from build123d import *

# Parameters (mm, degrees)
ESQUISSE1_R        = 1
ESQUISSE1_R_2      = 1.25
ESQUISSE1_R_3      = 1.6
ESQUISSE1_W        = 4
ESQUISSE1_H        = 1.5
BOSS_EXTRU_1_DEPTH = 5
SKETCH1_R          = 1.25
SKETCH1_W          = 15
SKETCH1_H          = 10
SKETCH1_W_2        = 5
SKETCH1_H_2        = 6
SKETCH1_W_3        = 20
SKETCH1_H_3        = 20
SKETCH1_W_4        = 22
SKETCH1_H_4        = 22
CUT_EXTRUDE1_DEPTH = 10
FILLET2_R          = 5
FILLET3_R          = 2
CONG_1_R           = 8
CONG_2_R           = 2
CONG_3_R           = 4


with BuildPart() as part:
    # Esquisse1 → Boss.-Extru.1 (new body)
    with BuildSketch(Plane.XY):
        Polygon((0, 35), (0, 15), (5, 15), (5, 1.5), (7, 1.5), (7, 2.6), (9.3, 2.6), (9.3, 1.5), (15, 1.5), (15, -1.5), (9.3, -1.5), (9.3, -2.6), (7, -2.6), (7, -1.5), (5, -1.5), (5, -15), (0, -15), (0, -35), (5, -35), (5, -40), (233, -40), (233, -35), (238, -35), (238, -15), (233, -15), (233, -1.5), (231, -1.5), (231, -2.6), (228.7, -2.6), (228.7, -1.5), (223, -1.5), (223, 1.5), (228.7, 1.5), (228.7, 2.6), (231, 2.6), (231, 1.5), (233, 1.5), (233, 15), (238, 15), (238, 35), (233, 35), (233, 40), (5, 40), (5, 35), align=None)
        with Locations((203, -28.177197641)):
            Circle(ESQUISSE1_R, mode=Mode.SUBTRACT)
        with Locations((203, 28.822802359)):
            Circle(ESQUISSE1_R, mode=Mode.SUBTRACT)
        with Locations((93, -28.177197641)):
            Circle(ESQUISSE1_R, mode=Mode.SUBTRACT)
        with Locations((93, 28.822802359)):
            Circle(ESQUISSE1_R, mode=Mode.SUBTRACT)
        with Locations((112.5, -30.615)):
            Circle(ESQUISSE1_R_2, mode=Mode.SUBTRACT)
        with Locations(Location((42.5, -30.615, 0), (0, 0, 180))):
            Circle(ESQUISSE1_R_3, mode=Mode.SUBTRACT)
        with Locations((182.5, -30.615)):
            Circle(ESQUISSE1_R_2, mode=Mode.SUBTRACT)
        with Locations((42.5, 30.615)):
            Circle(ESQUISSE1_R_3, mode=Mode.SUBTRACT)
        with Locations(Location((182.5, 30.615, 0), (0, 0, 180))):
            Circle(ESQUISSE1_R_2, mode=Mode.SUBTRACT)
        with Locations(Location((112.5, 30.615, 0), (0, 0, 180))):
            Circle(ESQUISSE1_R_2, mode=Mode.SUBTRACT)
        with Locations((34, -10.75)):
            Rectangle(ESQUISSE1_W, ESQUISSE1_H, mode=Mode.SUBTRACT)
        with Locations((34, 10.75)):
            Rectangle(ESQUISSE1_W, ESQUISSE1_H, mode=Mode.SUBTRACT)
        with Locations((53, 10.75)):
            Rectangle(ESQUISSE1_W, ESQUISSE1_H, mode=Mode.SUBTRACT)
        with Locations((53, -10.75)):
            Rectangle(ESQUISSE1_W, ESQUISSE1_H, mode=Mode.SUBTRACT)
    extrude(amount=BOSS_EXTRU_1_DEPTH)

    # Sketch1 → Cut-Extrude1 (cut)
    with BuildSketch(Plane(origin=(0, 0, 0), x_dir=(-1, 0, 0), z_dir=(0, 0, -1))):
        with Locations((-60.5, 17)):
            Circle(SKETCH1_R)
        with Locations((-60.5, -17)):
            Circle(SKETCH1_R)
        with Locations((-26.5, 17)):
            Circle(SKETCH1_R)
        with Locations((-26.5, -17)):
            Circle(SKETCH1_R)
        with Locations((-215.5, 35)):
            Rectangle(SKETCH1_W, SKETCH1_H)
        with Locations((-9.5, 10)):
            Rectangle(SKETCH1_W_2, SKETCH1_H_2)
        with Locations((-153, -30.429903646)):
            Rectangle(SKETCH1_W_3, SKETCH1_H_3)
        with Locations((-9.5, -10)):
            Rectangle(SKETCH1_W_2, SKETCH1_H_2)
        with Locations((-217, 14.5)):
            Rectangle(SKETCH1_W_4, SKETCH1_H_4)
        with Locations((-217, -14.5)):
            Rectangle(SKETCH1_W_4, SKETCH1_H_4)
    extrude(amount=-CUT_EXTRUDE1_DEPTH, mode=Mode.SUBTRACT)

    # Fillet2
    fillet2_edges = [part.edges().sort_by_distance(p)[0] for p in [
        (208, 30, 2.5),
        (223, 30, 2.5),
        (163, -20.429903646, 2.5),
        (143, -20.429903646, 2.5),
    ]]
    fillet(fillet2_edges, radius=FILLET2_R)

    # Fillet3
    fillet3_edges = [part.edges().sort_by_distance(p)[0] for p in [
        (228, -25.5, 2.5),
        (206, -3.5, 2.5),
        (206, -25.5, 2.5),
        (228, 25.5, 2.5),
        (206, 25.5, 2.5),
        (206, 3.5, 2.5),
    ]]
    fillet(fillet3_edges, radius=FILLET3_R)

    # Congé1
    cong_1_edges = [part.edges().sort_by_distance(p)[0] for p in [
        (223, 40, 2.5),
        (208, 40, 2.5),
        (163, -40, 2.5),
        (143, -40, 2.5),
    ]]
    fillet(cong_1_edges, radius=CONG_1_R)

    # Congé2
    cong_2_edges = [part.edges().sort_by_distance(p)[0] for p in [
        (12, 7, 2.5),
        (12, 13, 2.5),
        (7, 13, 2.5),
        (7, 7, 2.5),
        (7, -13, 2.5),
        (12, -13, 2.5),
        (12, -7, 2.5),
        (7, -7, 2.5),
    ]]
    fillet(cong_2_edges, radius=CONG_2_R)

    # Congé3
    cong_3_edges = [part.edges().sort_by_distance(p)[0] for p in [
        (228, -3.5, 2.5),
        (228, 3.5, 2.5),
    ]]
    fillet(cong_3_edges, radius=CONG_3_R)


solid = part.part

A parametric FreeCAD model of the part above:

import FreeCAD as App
import Part
import Sketcher
from FreeCAD import Vector
Q = App.Units.Quantity


def edges_at(feature, points):
    """Names of the edges that pass closest to the given points."""
    edges = feature.Shape.Edges
    near = lambda p: min(range(len(edges)), key=lambda i: edges[i].distToShape(Part.Vertex(*p))[0])
    return sorted({f"Edge{near(p) + 1}" for p in points})

doc = App.newDocument("Part")
body = doc.addObject("PartDesign::Body", "Body")

# Sketch on XY plane
sketch1 = body.newObject("Sketcher::SketchObject", "Sketch")
sketch1.AttachmentSupport = (doc.getObject("XY_Plane"), [""])
sketch1.MapMode = "FlatFace"
sketch1.addGeometry([
    Part.LineSegment(Vector(0, 35, 0), Vector(0, 15, 0)),  # 0
    Part.LineSegment(Vector(0, 15, 0), Vector(5, 15, 0)),  # 1
    Part.LineSegment(Vector(5, 15, 0), Vector(5, 1.5, 0)),  # 2
    Part.LineSegment(Vector(5, 1.5, 0), Vector(7, 1.5, 0)),  # 3
    Part.LineSegment(Vector(7, 1.5, 0), Vector(7, 2.6, 0)),  # 4
    Part.LineSegment(Vector(7, 2.6, 0), Vector(9.3, 2.6, 0)),  # 5
    Part.LineSegment(Vector(9.3, 2.6, 0), Vector(9.3, 1.5, 0)),  # 6
    Part.LineSegment(Vector(9.3, 1.5, 0), Vector(15, 1.5, 0)),  # 7
    Part.LineSegment(Vector(15, 1.5, 0), Vector(15, -1.5, 0)),  # 8
    Part.LineSegment(Vector(15, -1.5, 0), Vector(9.3, -1.5, 0)),  # 9
    Part.LineSegment(Vector(9.3, -1.5, 0), Vector(9.3, -2.6, 0)),  # 10
    Part.LineSegment(Vector(9.3, -2.6, 0), Vector(7, -2.6, 0)),  # 11
    Part.LineSegment(Vector(7, -2.6, 0), Vector(7, -1.5, 0)),  # 12
    Part.LineSegment(Vector(7, -1.5, 0), Vector(5, -1.5, 0)),  # 13
    Part.LineSegment(Vector(5, -1.5, 0), Vector(5, -15, 0)),  # 14
    Part.LineSegment(Vector(5, -15, 0), Vector(0, -15, 0)),  # 15
    Part.LineSegment(Vector(0, -15, 0), Vector(0, -35, 0)),  # 16
    Part.LineSegment(Vector(0, -35, 0), Vector(5, -35, 0)),  # 17
    Part.LineSegment(Vector(5, -35, 0), Vector(5, -40, 0)),  # 18
    Part.LineSegment(Vector(5, -40, 0), Vector(233, -40, 0)),  # 19
    Part.LineSegment(Vector(233, -40, 0), Vector(233, -35, 0)),  # 20
    Part.LineSegment(Vector(233, -35, 0), Vector(238, -35, 0)),  # 21
    Part.LineSegment(Vector(238, -35, 0), Vector(238, -15, 0)),  # 22
    Part.LineSegment(Vector(238, -15, 0), Vector(233, -15, 0)),  # 23
    Part.LineSegment(Vector(233, -15, 0), Vector(233, -1.5, 0)),  # 24
    Part.LineSegment(Vector(233, -1.5, 0), Vector(231, -1.5, 0)),  # 25
    Part.LineSegment(Vector(231, -1.5, 0), Vector(231, -2.6, 0)),  # 26
    Part.LineSegment(Vector(231, -2.6, 0), Vector(228.7, -2.6, 0)),  # 27
    Part.LineSegment(Vector(228.7, -2.6, 0), Vector(228.7, -1.5, 0)),  # 28
    Part.LineSegment(Vector(228.7, -1.5, 0), Vector(223, -1.5, 0)),  # 29
    Part.LineSegment(Vector(223, -1.5, 0), Vector(223, 1.5, 0)),  # 30
    Part.LineSegment(Vector(223, 1.5, 0), Vector(228.7, 1.5, 0)),  # 31
    Part.LineSegment(Vector(228.7, 1.5, 0), Vector(228.7, 2.6, 0)),  # 32
    Part.LineSegment(Vector(228.7, 2.6, 0), Vector(231, 2.6, 0)),  # 33
    Part.LineSegment(Vector(231, 2.6, 0), Vector(231, 1.5, 0)),  # 34
    Part.LineSegment(Vector(231, 1.5, 0), Vector(233, 1.5, 0)),  # 35
    Part.LineSegment(Vector(233, 1.5, 0), Vector(233, 15, 0)),  # 36
    Part.LineSegment(Vector(233, 15, 0), Vector(238, 15, 0)),  # 37
    Part.LineSegment(Vector(238, 15, 0), Vector(238, 35, 0)),  # 38
    Part.LineSegment(Vector(238, 35, 0), Vector(233, 35, 0)),  # 39
    Part.LineSegment(Vector(233, 35, 0), Vector(233, 40, 0)),  # 40
    Part.LineSegment(Vector(233, 40, 0), Vector(5, 40, 0)),  # 41
    Part.LineSegment(Vector(5, 40, 0), Vector(5, 35, 0)),  # 42
    Part.LineSegment(Vector(5, 35, 0), Vector(0, 35, 0)),  # 43
    Part.Circle(Vector(42.5, -30.6, 0), Vector(0, 0, 1), 1.6),  # 44
    Part.Circle(Vector(93, -28.2, 0), Vector(0, 0, 1), 1),  # 45
    Part.Circle(Vector(112.5, -30.6, 0), Vector(0, 0, 1), 1.2),  # 46
    Part.LineSegment(Vector(36, -11.5, 0), Vector(32, -11.5, 0)),  # 47
    Part.LineSegment(Vector(32, -11.5, 0), Vector(32, -10, 0)),  # 48
    Part.LineSegment(Vector(32, -10, 0), Vector(36, -10, 0)),  # 49
    Part.LineSegment(Vector(36, -10, 0), Vector(36, -11.5, 0)),  # 50
    Part.LineSegment(Vector(55, -11.5, 0), Vector(51, -11.5, 0)),  # 51
    Part.LineSegment(Vector(51, -11.5, 0), Vector(51, -10, 0)),  # 52
    Part.LineSegment(Vector(51, -10, 0), Vector(55, -10, 0)),  # 53
    Part.LineSegment(Vector(55, -10, 0), Vector(55, -11.5, 0)),  # 54
    Part.Circle(Vector(182.5, -30.6, 0), Vector(0, 0, 1), 1.2),  # 55
    Part.Circle(Vector(203, -28.2, 0), Vector(0, 0, 1), 1),  # 56
    Part.LineSegment(Vector(36, 10, 0), Vector(32, 10, 0)),  # 57
    Part.LineSegment(Vector(32, 10, 0), Vector(32, 11.5, 0)),  # 58
    Part.LineSegment(Vector(32, 11.5, 0), Vector(36, 11.5, 0)),  # 59
    Part.LineSegment(Vector(36, 11.5, 0), Vector(36, 10, 0)),  # 60
    Part.LineSegment(Vector(55, 10, 0), Vector(51, 10, 0)),  # 61
    Part.LineSegment(Vector(51, 10, 0), Vector(51, 11.5, 0)),  # 62
    Part.LineSegment(Vector(51, 11.5, 0), Vector(55, 11.5, 0)),  # 63
    Part.LineSegment(Vector(55, 11.5, 0), Vector(55, 10, 0)),  # 64
    Part.Circle(Vector(42.5, 30.6, 0), Vector(0, 0, 1), 1.6),  # 65
    Part.Circle(Vector(93, 28.8, 0), Vector(0, 0, 1), 1),  # 66
    Part.Circle(Vector(112.5, 30.6, 0), Vector(0, 0, 1), 1.2),  # 67
    Part.Circle(Vector(182.5, 30.6, 0), Vector(0, 0, 1), 1.2),  # 68
    Part.Circle(Vector(203, 28.8, 0), Vector(0, 0, 1), 1),  # 69
], False)
sketch1.addConstraint([
    Sketcher.Constraint("Coincident", 0, 2, 1, 1),
    Sketcher.Constraint("Coincident", 1, 2, 2, 1),
    Sketcher.Constraint("Coincident", 2, 2, 3, 1),
    Sketcher.Constraint("Coincident", 3, 2, 4, 1),
    Sketcher.Constraint("Coincident", 4, 2, 5, 1),
    Sketcher.Constraint("Coincident", 5, 2, 6, 1),
    Sketcher.Constraint("Coincident", 6, 2, 7, 1),
    Sketcher.Constraint("Coincident", 7, 2, 8, 1),
    Sketcher.Constraint("Coincident", 8, 2, 9, 1),
    Sketcher.Constraint("Coincident", 9, 2, 10, 1),
    Sketcher.Constraint("Coincident", 10, 2, 11, 1),
    Sketcher.Constraint("Coincident", 11, 2, 12, 1),
    Sketcher.Constraint("Coincident", 12, 2, 13, 1),
    Sketcher.Constraint("Coincident", 13, 2, 14, 1),
    Sketcher.Constraint("Coincident", 14, 2, 15, 1),
    Sketcher.Constraint("Coincident", 15, 2, 16, 1),
    Sketcher.Constraint("Coincident", 16, 2, 17, 1),
    Sketcher.Constraint("Coincident", 17, 2, 18, 1),
    Sketcher.Constraint("Coincident", 18, 2, 19, 1),
    Sketcher.Constraint("Coincident", 19, 2, 20, 1),
    Sketcher.Constraint("Coincident", 20, 2, 21, 1),
    Sketcher.Constraint("Coincident", 21, 2, 22, 1),
    Sketcher.Constraint("Coincident", 22, 2, 23, 1),
    Sketcher.Constraint("Coincident", 23, 2, 24, 1),
    Sketcher.Constraint("Coincident", 24, 2, 25, 1),
    Sketcher.Constraint("Coincident", 25, 2, 26, 1),
    Sketcher.Constraint("Coincident", 26, 2, 27, 1),
    Sketcher.Constraint("Coincident", 27, 2, 28, 1),
    Sketcher.Constraint("Coincident", 28, 2, 29, 1),
    Sketcher.Constraint("Coincident", 29, 2, 30, 1),
    Sketcher.Constraint("Coincident", 30, 2, 31, 1),
    Sketcher.Constraint("Coincident", 31, 2, 32, 1),
    Sketcher.Constraint("Coincident", 32, 2, 33, 1),
    Sketcher.Constraint("Coincident", 33, 2, 34, 1),
    Sketcher.Constraint("Coincident", 34, 2, 35, 1),
    Sketcher.Constraint("Coincident", 35, 2, 36, 1),
    Sketcher.Constraint("Coincident", 36, 2, 37, 1),
    Sketcher.Constraint("Coincident", 37, 2, 38, 1),
    Sketcher.Constraint("Coincident", 38, 2, 39, 1),
    Sketcher.Constraint("Coincident", 39, 2, 40, 1),
    Sketcher.Constraint("Coincident", 40, 2, 41, 1),
    Sketcher.Constraint("Coincident", 41, 2, 42, 1),
    Sketcher.Constraint("Coincident", 42, 2, 43, 1),
    Sketcher.Constraint("Coincident", 43, 2, 0, 1),
    Sketcher.Constraint("Coincident", 47, 2, 48, 1),
    Sketcher.Constraint("Coincident", 48, 2, 49, 1),
    Sketcher.Constraint("Coincident", 49, 2, 50, 1),
    Sketcher.Constraint("Coincident", 50, 2, 47, 1),
    Sketcher.Constraint("Coincident", 51, 2, 52, 1),
    Sketcher.Constraint("Coincident", 52, 2, 53, 1),
    Sketcher.Constraint("Coincident", 53, 2, 54, 1),
    Sketcher.Constraint("Coincident", 54, 2, 51, 1),
    Sketcher.Constraint("Coincident", 57, 2, 58, 1),
    Sketcher.Constraint("Coincident", 58, 2, 59, 1),
    Sketcher.Constraint("Coincident", 59, 2, 60, 1),
    Sketcher.Constraint("Coincident", 60, 2, 57, 1),
    Sketcher.Constraint("Coincident", 61, 2, 62, 1),
    Sketcher.Constraint("Coincident", 62, 2, 63, 1),
    Sketcher.Constraint("Coincident", 63, 2, 64, 1),
    Sketcher.Constraint("Coincident", 64, 2, 61, 1),
    Sketcher.Constraint("Vertical", 0),
    Sketcher.Constraint("Horizontal", 1),
    Sketcher.Constraint("Vertical", 2),
    Sketcher.Constraint("Horizontal", 3),
    Sketcher.Constraint("Vertical", 4),
    Sketcher.Constraint("Horizontal", 5),
    Sketcher.Constraint("Vertical", 6),
    Sketcher.Constraint("Horizontal", 7),
    Sketcher.Constraint("Vertical", 8),
    Sketcher.Constraint("Horizontal", 9),
    Sketcher.Constraint("Vertical", 10),
    Sketcher.Constraint("Horizontal", 11),
    Sketcher.Constraint("Vertical", 12),
    Sketcher.Constraint("Horizontal", 13),
    Sketcher.Constraint("Vertical", 14),
    Sketcher.Constraint("Horizontal", 15),
    Sketcher.Constraint("Vertical", 16),
    Sketcher.Constraint("Horizontal", 17),
    Sketcher.Constraint("Vertical", 18),
    Sketcher.Constraint("Horizontal", 19),
    Sketcher.Constraint("Vertical", 20),
    Sketcher.Constraint("Horizontal", 21),
    Sketcher.Constraint("Vertical", 22),
    Sketcher.Constraint("Horizontal", 23),
    Sketcher.Constraint("Vertical", 24),
    Sketcher.Constraint("Horizontal", 25),
    Sketcher.Constraint("Vertical", 26),
    Sketcher.Constraint("Horizontal", 27),
    Sketcher.Constraint("Vertical", 28),
    Sketcher.Constraint("Horizontal", 29),
    Sketcher.Constraint("Vertical", 30),
    Sketcher.Constraint("Horizontal", 31),
    Sketcher.Constraint("Vertical", 32),
    Sketcher.Constraint("Horizontal", 33),
    Sketcher.Constraint("Vertical", 34),
    Sketcher.Constraint("Horizontal", 35),
    Sketcher.Constraint("Vertical", 36),
    Sketcher.Constraint("Horizontal", 37),
    Sketcher.Constraint("Vertical", 38),
    Sketcher.Constraint("Horizontal", 39),
    Sketcher.Constraint("Vertical", 40),
    Sketcher.Constraint("Horizontal", 41),
    Sketcher.Constraint("Vertical", 42),
    Sketcher.Constraint("Horizontal", 43),
    Sketcher.Constraint("Horizontal", 47),
    Sketcher.Constraint("Vertical", 48),
    Sketcher.Constraint("Horizontal", 49),
    Sketcher.Constraint("Vertical", 50),
    Sketcher.Constraint("Horizontal", 51),
    Sketcher.Constraint("Vertical", 52),
    Sketcher.Constraint("Horizontal", 53),
    Sketcher.Constraint("Vertical", 54),
    Sketcher.Constraint("Horizontal", 57),
    Sketcher.Constraint("Vertical", 58),
    Sketcher.Constraint("Horizontal", 59),
    Sketcher.Constraint("Vertical", 60),
    Sketcher.Constraint("Horizontal", 61),
    Sketcher.Constraint("Vertical", 62),
    Sketcher.Constraint("Horizontal", 63),
    Sketcher.Constraint("Vertical", 64),
    Sketcher.Constraint("Equal", 46, 55),
    Sketcher.Constraint("Equal", 45, 56),
    Sketcher.Constraint("Equal", 44, 65),
    Sketcher.Constraint("Equal", 56, 66),
    Sketcher.Constraint("Equal", 55, 67),
    Sketcher.Constraint("Equal", 67, 68),
    Sketcher.Constraint("Equal", 66, 69),
    Sketcher.Constraint("Symmetric", 0, 2, 15, 2, -1, 1),
    Sketcher.Constraint("Symmetric", 44, 3, 65, 3, -1),
    Sketcher.Constraint("Symmetric", 46, 3, 67, 3, -1),
    Sketcher.Constraint("Symmetric", 55, 3, 68, 3, -1),
    Sketcher.Constraint("Symmetric", 6, 2, 9, 2, -1),
    Sketcher.Constraint("Symmetric", 4, 2, 11, 2, -1),
    Sketcher.Constraint("Symmetric", 2, 2, 13, 2, -1),
    Sketcher.Constraint("Symmetric", 28, 2, 31, 2, -1),
    Sketcher.Constraint("Symmetric", 26, 2, 33, 2, -1),
    Sketcher.Constraint("Symmetric", 24, 2, 35, 2, -1),
    Sketcher.Constraint("Symmetric", 22, 2, 37, 2, -1),
    Sketcher.Constraint("Symmetric", 20, 2, 39, 2, -1),
    Sketcher.Constraint("Symmetric", 18, 2, 41, 2, -1),
    Sketcher.Constraint("Symmetric", 16, 2, 43, 2, -1),
    Sketcher.Constraint("Symmetric", 48, 2, 57, 2, -1),
    Sketcher.Constraint("Symmetric", 50, 2, 59, 2, -1),
    Sketcher.Constraint("Symmetric", 52, 2, 61, 2, -1),
    Sketcher.Constraint("Symmetric", 54, 2, 63, 2, -1),
    Sketcher.Constraint("Horizontal", 44, 3, 46, 3),
    Sketcher.Constraint("Horizontal", 46, 3, 55, 3),
    Sketcher.Constraint("Horizontal", 45, 3, 56, 3),
    Sketcher.Constraint("Horizontal", 66, 3, 69, 3),
    Sketcher.Constraint("Horizontal", 3, 2, 6, 2),
    Sketcher.Constraint("Horizontal", 17, 2, 20, 2),
    Sketcher.Constraint("Horizontal", 15, 2, 22, 2),
    Sketcher.Constraint("Horizontal", 13, 2, 24, 2),
    Sketcher.Constraint("Horizontal", 11, 2, 26, 2),
    Sketcher.Constraint("Horizontal", 25, 2, 28, 2),
    Sketcher.Constraint("Horizontal", 50, 2, 51, 2),
    Sketcher.Constraint("Horizontal", 49, 2, 52, 2),
    Sketcher.Constraint("Vertical", 45, 3, 66, 3),
    Sketcher.Constraint("Vertical", 56, 3, 69, 3),
    Sketcher.Constraint("Vertical", 14, 2, 17, 2),
    Sketcher.Constraint("Vertical", 20, 2, 23, 2),
    Sketcher.Constraint("Equal", 17, 21),
    Sketcher.Constraint("Equal", 13, 25),
    Sketcher.Constraint("Equal", 11, 27),
    Sketcher.Constraint("Equal", 9, 29),
    Sketcher.Constraint("Equal", 49, 51),
    Sketcher.Constraint("Equal", 43, 18),
    Sketcher.Constraint("Diameter", 45, Q("2 mm")),
    Sketcher.Constraint("Diameter", 44, Q("3.2 mm")),
    Sketcher.Constraint("Diameter", 46, Q("2.5 mm")),
    Sketcher.Constraint("DistanceX", 1, 1, 1, 2, Q("5 mm")),
    Sketcher.Constraint("DistanceX", 3, 1, 3, 2, Q("2 mm")),
    Sketcher.Constraint("DistanceX", 19, 1, 19, 2, Q("228 mm")),
    Sketcher.Constraint("DistanceX", 47, 2, 47, 1, Q("4 mm")),
    Sketcher.Constraint("DistanceY", 0, 2, 0, 1, Q("20 mm")),
    Sketcher.Constraint("DistanceY", 8, 2, 8, 1, Q("3 mm")),
    Sketcher.Constraint("DistanceX", 5, 1, 5, 2, Q("2.3 mm")),
    Sketcher.Constraint("DistanceX", 7, 1, 7, 2, Q("5.7 mm")),
    Sketcher.Constraint("DistanceY", 2, 2, 2, 1, Q("13.5 mm")),
    Sketcher.Constraint("DistanceY", 4, 1, 4, 2, Q("1.1 mm")),
    Sketcher.Constraint("DistanceY", 48, 1, 48, 2, Q("1.5 mm")),
    Sketcher.Constraint("DistanceX", -1, 1, 45, 3, Q("93 mm")),
    Sketcher.Constraint("DistanceX", -1, 1, 56, 3, Q("203 mm")),
    Sketcher.Constraint("DistanceX", -1, 1, 47, 2, Q("32 mm")),
    Sketcher.Constraint("DistanceY", 48, 2, -1, 1, Q("10 mm")),
    Sketcher.Constraint("DistanceX", -1, 1, 51, 2, Q("51 mm")),
    Sketcher.Constraint("DistanceX", -1, 1, 44, 3, Q("42.5 mm")),
    Sketcher.Constraint("DistanceX", -1, 1, 46, 3, Q("112.5 mm")),
    Sketcher.Constraint("DistanceX", -1, 1, 55, 3, Q("182.5 mm")),
    Sketcher.Constraint("DistanceY", 44, 3, -1, 1, Q("30.615 mm")),
    Sketcher.Constraint("DistanceY", 45, 3, -1, 1, Q("28.177198 mm")),
    Sketcher.Constraint("DistanceY", -1, 1, 66, 3, Q("28.822802 mm")),
])
pad1 = body.newObject("PartDesign::Pad", "Pad")
pad1.Profile = sketch1
pad1.Length = 5

# Sketch on XY plane
sketch2 = body.newObject("Sketcher::SketchObject", "Sketch001")
sketch2.AttachmentSupport = (doc.getObject("XY_Plane"), [""])
sketch2.MapMode = "FlatFace"
sketch2.addGeometry([
    Part.Circle(Vector(60.5, 17, 0), Vector(0, 0, 1), 1.2),  # 0
    Part.Circle(Vector(60.5, -17, 0), Vector(0, 0, 1), 1.2),  # 1
    Part.Circle(Vector(26.5, 17, 0), Vector(0, 0, 1), 1.2),  # 2
    Part.Circle(Vector(26.5, -17, 0), Vector(0, 0, 1), 1.2),  # 3
    Part.LineSegment(Vector(223, 40, 0), Vector(223, 30, 0)),  # 4
    Part.LineSegment(Vector(223, 30, 0), Vector(208, 30, 0)),  # 5
    Part.LineSegment(Vector(208, 30, 0), Vector(208, 40, 0)),  # 6
    Part.LineSegment(Vector(208, 40, 0), Vector(223, 40, 0)),  # 7
    Part.LineSegment(Vector(12, 13, 0), Vector(12, 7, 0)),  # 8
    Part.LineSegment(Vector(12, 7, 0), Vector(7, 7, 0)),  # 9
    Part.LineSegment(Vector(7, 7, 0), Vector(7, 13, 0)),  # 10
    Part.LineSegment(Vector(7, 13, 0), Vector(12, 13, 0)),  # 11
    Part.LineSegment(Vector(163, -20.4, 0), Vector(163, -40.4, 0)),  # 12
    Part.LineSegment(Vector(163, -40.4, 0), Vector(143, -40.4, 0)),  # 13
    Part.LineSegment(Vector(143, -40.4, 0), Vector(143, -20.4, 0)),  # 14
    Part.LineSegment(Vector(143, -20.4, 0), Vector(163, -20.4, 0)),  # 15
    Part.LineSegment(Vector(12, -7, 0), Vector(12, -13, 0)),  # 16
    Part.LineSegment(Vector(12, -13, 0), Vector(7, -13, 0)),  # 17
    Part.LineSegment(Vector(7, -13, 0), Vector(7, -7, 0)),  # 18
    Part.LineSegment(Vector(7, -7, 0), Vector(12, -7, 0)),  # 19
    Part.LineSegment(Vector(228, 25.5, 0), Vector(228, 3.5, 0)),  # 20
    Part.LineSegment(Vector(228, 3.5, 0), Vector(206, 3.5, 0)),  # 21
    Part.LineSegment(Vector(206, 3.5, 0), Vector(206, 25.5, 0)),  # 22
    Part.LineSegment(Vector(206, 25.5, 0), Vector(228, 25.5, 0)),  # 23
    Part.LineSegment(Vector(228, -3.5, 0), Vector(228, -25.5, 0)),  # 24
    Part.LineSegment(Vector(228, -25.5, 0), Vector(206, -25.5, 0)),  # 25
    Part.LineSegment(Vector(206, -25.5, 0), Vector(206, -3.5, 0)),  # 26
    Part.LineSegment(Vector(206, -3.5, 0), Vector(228, -3.5, 0)),  # 27
], False)
sketch2.addConstraint([
    Sketcher.Constraint("Coincident", 4, 2, 5, 1),
    Sketcher.Constraint("Coincident", 5, 2, 6, 1),
    Sketcher.Constraint("Coincident", 6, 2, 7, 1),
    Sketcher.Constraint("Coincident", 7, 2, 4, 1),
    Sketcher.Constraint("Coincident", 8, 2, 9, 1),
    Sketcher.Constraint("Coincident", 9, 2, 10, 1),
    Sketcher.Constraint("Coincident", 10, 2, 11, 1),
    Sketcher.Constraint("Coincident", 11, 2, 8, 1),
    Sketcher.Constraint("Coincident", 12, 2, 13, 1),
    Sketcher.Constraint("Coincident", 13, 2, 14, 1),
    Sketcher.Constraint("Coincident", 14, 2, 15, 1),
    Sketcher.Constraint("Coincident", 15, 2, 12, 1),
    Sketcher.Constraint("Coincident", 16, 2, 17, 1),
    Sketcher.Constraint("Coincident", 17, 2, 18, 1),
    Sketcher.Constraint("Coincident", 18, 2, 19, 1),
    Sketcher.Constraint("Coincident", 19, 2, 16, 1),
    Sketcher.Constraint("Coincident", 20, 2, 21, 1),
    Sketcher.Constraint("Coincident", 21, 2, 22, 1),
    Sketcher.Constraint("Coincident", 22, 2, 23, 1),
    Sketcher.Constraint("Coincident", 23, 2, 20, 1),
    Sketcher.Constraint("Coincident", 24, 2, 25, 1),
    Sketcher.Constraint("Coincident", 25, 2, 26, 1),
    Sketcher.Constraint("Coincident", 26, 2, 27, 1),
    Sketcher.Constraint("Coincident", 27, 2, 24, 1),
    Sketcher.Constraint("Vertical", 4),
    Sketcher.Constraint("Horizontal", 5),
    Sketcher.Constraint("Vertical", 6),
    Sketcher.Constraint("Horizontal", 7),
    Sketcher.Constraint("Vertical", 8),
    Sketcher.Constraint("Horizontal", 9),
    Sketcher.Constraint("Vertical", 10),
    Sketcher.Constraint("Horizontal", 11),
    Sketcher.Constraint("Vertical", 12),
    Sketcher.Constraint("Horizontal", 13),
    Sketcher.Constraint("Vertical", 14),
    Sketcher.Constraint("Horizontal", 15),
    Sketcher.Constraint("Vertical", 16),
    Sketcher.Constraint("Horizontal", 17),
    Sketcher.Constraint("Vertical", 18),
    Sketcher.Constraint("Horizontal", 19),
    Sketcher.Constraint("Vertical", 20),
    Sketcher.Constraint("Horizontal", 21),
    Sketcher.Constraint("Vertical", 22),
    Sketcher.Constraint("Horizontal", 23),
    Sketcher.Constraint("Vertical", 24),
    Sketcher.Constraint("Horizontal", 25),
    Sketcher.Constraint("Vertical", 26),
    Sketcher.Constraint("Horizontal", 27),
    Sketcher.Constraint("Equal", 0, 1),
    Sketcher.Constraint("Equal", 1, 2),
    Sketcher.Constraint("Equal", 2, 3),
    Sketcher.Constraint("Symmetric", 0, 3, 1, 3, -1),
    Sketcher.Constraint("Symmetric", 2, 3, 3, 3, -1),
    Sketcher.Constraint("Symmetric", 11, 2, 16, 2, -1),
    Sketcher.Constraint("Symmetric", 9, 2, 18, 2, -1),
    Sketcher.Constraint("Symmetric", 23, 2, 24, 2, -1),
    Sketcher.Constraint("Symmetric", 21, 2, 26, 2, -1),
    Sketcher.Constraint("Horizontal", 0, 3, 2, 3),
    Sketcher.Constraint("Equal", 15, 12),
    Sketcher.Constraint("Equal", 27, 20),
    Sketcher.Constraint("Diameter", 0, Q("2.5 mm")),
    Sketcher.Constraint("DistanceX", 5, 2, 5, 1, Q("15 mm")),
    Sketcher.Constraint("DistanceX", 9, 2, 9, 1, Q("5 mm")),
    Sketcher.Constraint("DistanceX", 13, 2, 13, 1, Q("20 mm")),
    Sketcher.Constraint("DistanceX", 21, 2, 21, 1, Q("22 mm")),
    Sketcher.Constraint("DistanceY", 4, 2, 4, 1, Q("10 mm")),
    Sketcher.Constraint("DistanceY", 8, 2, 8, 1, Q("6 mm")),
    Sketcher.Constraint("DistanceY", -1, 1, 0, 3, Q("17 mm")),
    Sketcher.Constraint("DistanceX", -1, 1, 4, 2, Q("223 mm")),
    Sketcher.Constraint("DistanceY", -1, 1, 4, 2, Q("30 mm")),
    Sketcher.Constraint("DistanceX", -1, 1, 8, 2, Q("12 mm")),
    Sketcher.Constraint("DistanceY", -1, 1, 8, 2, Q("7 mm")),
    Sketcher.Constraint("DistanceX", -1, 1, 12, 2, Q("163 mm")),
    Sketcher.Constraint("DistanceX", -1, 1, 20, 2, Q("228 mm")),
    Sketcher.Constraint("DistanceX", 2, 3, 0, 3, Q("34 mm")),
    Sketcher.Constraint("DistanceY", 24, 2, 20, 2, Q("29 mm")),
    Sketcher.Constraint("DistanceX", -1, 1, 0, 3, Q("60.5 mm")),
    Sketcher.Constraint("DistanceY", 12, 2, -1, 1, Q("40.429904 mm")),
])
pocket1 = body.newObject("PartDesign::Pocket", "Pocket")
pocket1.Profile = sketch2
pocket1.Length = 10
pocket1.Reversed = True
doc.recompute()

fillet = body.newObject("PartDesign::Fillet", "Fillet")
fillet.Base = (pocket1, edges_at(pocket1, [
    (208, 30, 2.5),
    (223, 30, 2.5),
    (163, -20.43, 2.5),
    (143, -20.43, 2.5),
]))
fillet.Radius = 5
doc.recompute()

fillet2 = body.newObject("PartDesign::Fillet", "Fillet001")
fillet2.Base = (fillet, edges_at(fillet, [
    (228, -25.5, 2.5),
    (206, -3.5, 2.5),
    (206, -25.5, 2.5),
    (228, 25.5, 2.5),
    (206, 25.5, 2.5),
    (206, 3.5, 2.5),
]))
fillet2.Radius = 2
doc.recompute()

fillet3 = body.newObject("PartDesign::Fillet", "Fillet002")
fillet3.Base = (fillet2, edges_at(fillet2, [
    (223, 40, 2.5),
    (208, 40, 2.5),
    (163, -40, 2.5),
    (143, -40, 2.5),
]))
fillet3.Radius = 8
doc.recompute()

fillet4 = body.newObject("PartDesign::Fillet", "Fillet003")
fillet4.Base = (fillet3, edges_at(fillet3, [
    (12, 7, 2.5),
    (12, 13, 2.5),
    (7, 13, 2.5),
    (7, 7, 2.5),
    (7, -13, 2.5),
    (12, -13, 2.5),
    (12, -7, 2.5),
    (7, -7, 2.5),
]))
fillet4.Radius = 2
doc.recompute()

fillet5 = body.newObject("PartDesign::Fillet", "Fillet004")
fillet5.Base = (fillet4, edges_at(fillet4, [(228, -3.5, 2.5), (228, 3.5, 2.5)]))
fillet5.Radius = 4

doc.recompute()
